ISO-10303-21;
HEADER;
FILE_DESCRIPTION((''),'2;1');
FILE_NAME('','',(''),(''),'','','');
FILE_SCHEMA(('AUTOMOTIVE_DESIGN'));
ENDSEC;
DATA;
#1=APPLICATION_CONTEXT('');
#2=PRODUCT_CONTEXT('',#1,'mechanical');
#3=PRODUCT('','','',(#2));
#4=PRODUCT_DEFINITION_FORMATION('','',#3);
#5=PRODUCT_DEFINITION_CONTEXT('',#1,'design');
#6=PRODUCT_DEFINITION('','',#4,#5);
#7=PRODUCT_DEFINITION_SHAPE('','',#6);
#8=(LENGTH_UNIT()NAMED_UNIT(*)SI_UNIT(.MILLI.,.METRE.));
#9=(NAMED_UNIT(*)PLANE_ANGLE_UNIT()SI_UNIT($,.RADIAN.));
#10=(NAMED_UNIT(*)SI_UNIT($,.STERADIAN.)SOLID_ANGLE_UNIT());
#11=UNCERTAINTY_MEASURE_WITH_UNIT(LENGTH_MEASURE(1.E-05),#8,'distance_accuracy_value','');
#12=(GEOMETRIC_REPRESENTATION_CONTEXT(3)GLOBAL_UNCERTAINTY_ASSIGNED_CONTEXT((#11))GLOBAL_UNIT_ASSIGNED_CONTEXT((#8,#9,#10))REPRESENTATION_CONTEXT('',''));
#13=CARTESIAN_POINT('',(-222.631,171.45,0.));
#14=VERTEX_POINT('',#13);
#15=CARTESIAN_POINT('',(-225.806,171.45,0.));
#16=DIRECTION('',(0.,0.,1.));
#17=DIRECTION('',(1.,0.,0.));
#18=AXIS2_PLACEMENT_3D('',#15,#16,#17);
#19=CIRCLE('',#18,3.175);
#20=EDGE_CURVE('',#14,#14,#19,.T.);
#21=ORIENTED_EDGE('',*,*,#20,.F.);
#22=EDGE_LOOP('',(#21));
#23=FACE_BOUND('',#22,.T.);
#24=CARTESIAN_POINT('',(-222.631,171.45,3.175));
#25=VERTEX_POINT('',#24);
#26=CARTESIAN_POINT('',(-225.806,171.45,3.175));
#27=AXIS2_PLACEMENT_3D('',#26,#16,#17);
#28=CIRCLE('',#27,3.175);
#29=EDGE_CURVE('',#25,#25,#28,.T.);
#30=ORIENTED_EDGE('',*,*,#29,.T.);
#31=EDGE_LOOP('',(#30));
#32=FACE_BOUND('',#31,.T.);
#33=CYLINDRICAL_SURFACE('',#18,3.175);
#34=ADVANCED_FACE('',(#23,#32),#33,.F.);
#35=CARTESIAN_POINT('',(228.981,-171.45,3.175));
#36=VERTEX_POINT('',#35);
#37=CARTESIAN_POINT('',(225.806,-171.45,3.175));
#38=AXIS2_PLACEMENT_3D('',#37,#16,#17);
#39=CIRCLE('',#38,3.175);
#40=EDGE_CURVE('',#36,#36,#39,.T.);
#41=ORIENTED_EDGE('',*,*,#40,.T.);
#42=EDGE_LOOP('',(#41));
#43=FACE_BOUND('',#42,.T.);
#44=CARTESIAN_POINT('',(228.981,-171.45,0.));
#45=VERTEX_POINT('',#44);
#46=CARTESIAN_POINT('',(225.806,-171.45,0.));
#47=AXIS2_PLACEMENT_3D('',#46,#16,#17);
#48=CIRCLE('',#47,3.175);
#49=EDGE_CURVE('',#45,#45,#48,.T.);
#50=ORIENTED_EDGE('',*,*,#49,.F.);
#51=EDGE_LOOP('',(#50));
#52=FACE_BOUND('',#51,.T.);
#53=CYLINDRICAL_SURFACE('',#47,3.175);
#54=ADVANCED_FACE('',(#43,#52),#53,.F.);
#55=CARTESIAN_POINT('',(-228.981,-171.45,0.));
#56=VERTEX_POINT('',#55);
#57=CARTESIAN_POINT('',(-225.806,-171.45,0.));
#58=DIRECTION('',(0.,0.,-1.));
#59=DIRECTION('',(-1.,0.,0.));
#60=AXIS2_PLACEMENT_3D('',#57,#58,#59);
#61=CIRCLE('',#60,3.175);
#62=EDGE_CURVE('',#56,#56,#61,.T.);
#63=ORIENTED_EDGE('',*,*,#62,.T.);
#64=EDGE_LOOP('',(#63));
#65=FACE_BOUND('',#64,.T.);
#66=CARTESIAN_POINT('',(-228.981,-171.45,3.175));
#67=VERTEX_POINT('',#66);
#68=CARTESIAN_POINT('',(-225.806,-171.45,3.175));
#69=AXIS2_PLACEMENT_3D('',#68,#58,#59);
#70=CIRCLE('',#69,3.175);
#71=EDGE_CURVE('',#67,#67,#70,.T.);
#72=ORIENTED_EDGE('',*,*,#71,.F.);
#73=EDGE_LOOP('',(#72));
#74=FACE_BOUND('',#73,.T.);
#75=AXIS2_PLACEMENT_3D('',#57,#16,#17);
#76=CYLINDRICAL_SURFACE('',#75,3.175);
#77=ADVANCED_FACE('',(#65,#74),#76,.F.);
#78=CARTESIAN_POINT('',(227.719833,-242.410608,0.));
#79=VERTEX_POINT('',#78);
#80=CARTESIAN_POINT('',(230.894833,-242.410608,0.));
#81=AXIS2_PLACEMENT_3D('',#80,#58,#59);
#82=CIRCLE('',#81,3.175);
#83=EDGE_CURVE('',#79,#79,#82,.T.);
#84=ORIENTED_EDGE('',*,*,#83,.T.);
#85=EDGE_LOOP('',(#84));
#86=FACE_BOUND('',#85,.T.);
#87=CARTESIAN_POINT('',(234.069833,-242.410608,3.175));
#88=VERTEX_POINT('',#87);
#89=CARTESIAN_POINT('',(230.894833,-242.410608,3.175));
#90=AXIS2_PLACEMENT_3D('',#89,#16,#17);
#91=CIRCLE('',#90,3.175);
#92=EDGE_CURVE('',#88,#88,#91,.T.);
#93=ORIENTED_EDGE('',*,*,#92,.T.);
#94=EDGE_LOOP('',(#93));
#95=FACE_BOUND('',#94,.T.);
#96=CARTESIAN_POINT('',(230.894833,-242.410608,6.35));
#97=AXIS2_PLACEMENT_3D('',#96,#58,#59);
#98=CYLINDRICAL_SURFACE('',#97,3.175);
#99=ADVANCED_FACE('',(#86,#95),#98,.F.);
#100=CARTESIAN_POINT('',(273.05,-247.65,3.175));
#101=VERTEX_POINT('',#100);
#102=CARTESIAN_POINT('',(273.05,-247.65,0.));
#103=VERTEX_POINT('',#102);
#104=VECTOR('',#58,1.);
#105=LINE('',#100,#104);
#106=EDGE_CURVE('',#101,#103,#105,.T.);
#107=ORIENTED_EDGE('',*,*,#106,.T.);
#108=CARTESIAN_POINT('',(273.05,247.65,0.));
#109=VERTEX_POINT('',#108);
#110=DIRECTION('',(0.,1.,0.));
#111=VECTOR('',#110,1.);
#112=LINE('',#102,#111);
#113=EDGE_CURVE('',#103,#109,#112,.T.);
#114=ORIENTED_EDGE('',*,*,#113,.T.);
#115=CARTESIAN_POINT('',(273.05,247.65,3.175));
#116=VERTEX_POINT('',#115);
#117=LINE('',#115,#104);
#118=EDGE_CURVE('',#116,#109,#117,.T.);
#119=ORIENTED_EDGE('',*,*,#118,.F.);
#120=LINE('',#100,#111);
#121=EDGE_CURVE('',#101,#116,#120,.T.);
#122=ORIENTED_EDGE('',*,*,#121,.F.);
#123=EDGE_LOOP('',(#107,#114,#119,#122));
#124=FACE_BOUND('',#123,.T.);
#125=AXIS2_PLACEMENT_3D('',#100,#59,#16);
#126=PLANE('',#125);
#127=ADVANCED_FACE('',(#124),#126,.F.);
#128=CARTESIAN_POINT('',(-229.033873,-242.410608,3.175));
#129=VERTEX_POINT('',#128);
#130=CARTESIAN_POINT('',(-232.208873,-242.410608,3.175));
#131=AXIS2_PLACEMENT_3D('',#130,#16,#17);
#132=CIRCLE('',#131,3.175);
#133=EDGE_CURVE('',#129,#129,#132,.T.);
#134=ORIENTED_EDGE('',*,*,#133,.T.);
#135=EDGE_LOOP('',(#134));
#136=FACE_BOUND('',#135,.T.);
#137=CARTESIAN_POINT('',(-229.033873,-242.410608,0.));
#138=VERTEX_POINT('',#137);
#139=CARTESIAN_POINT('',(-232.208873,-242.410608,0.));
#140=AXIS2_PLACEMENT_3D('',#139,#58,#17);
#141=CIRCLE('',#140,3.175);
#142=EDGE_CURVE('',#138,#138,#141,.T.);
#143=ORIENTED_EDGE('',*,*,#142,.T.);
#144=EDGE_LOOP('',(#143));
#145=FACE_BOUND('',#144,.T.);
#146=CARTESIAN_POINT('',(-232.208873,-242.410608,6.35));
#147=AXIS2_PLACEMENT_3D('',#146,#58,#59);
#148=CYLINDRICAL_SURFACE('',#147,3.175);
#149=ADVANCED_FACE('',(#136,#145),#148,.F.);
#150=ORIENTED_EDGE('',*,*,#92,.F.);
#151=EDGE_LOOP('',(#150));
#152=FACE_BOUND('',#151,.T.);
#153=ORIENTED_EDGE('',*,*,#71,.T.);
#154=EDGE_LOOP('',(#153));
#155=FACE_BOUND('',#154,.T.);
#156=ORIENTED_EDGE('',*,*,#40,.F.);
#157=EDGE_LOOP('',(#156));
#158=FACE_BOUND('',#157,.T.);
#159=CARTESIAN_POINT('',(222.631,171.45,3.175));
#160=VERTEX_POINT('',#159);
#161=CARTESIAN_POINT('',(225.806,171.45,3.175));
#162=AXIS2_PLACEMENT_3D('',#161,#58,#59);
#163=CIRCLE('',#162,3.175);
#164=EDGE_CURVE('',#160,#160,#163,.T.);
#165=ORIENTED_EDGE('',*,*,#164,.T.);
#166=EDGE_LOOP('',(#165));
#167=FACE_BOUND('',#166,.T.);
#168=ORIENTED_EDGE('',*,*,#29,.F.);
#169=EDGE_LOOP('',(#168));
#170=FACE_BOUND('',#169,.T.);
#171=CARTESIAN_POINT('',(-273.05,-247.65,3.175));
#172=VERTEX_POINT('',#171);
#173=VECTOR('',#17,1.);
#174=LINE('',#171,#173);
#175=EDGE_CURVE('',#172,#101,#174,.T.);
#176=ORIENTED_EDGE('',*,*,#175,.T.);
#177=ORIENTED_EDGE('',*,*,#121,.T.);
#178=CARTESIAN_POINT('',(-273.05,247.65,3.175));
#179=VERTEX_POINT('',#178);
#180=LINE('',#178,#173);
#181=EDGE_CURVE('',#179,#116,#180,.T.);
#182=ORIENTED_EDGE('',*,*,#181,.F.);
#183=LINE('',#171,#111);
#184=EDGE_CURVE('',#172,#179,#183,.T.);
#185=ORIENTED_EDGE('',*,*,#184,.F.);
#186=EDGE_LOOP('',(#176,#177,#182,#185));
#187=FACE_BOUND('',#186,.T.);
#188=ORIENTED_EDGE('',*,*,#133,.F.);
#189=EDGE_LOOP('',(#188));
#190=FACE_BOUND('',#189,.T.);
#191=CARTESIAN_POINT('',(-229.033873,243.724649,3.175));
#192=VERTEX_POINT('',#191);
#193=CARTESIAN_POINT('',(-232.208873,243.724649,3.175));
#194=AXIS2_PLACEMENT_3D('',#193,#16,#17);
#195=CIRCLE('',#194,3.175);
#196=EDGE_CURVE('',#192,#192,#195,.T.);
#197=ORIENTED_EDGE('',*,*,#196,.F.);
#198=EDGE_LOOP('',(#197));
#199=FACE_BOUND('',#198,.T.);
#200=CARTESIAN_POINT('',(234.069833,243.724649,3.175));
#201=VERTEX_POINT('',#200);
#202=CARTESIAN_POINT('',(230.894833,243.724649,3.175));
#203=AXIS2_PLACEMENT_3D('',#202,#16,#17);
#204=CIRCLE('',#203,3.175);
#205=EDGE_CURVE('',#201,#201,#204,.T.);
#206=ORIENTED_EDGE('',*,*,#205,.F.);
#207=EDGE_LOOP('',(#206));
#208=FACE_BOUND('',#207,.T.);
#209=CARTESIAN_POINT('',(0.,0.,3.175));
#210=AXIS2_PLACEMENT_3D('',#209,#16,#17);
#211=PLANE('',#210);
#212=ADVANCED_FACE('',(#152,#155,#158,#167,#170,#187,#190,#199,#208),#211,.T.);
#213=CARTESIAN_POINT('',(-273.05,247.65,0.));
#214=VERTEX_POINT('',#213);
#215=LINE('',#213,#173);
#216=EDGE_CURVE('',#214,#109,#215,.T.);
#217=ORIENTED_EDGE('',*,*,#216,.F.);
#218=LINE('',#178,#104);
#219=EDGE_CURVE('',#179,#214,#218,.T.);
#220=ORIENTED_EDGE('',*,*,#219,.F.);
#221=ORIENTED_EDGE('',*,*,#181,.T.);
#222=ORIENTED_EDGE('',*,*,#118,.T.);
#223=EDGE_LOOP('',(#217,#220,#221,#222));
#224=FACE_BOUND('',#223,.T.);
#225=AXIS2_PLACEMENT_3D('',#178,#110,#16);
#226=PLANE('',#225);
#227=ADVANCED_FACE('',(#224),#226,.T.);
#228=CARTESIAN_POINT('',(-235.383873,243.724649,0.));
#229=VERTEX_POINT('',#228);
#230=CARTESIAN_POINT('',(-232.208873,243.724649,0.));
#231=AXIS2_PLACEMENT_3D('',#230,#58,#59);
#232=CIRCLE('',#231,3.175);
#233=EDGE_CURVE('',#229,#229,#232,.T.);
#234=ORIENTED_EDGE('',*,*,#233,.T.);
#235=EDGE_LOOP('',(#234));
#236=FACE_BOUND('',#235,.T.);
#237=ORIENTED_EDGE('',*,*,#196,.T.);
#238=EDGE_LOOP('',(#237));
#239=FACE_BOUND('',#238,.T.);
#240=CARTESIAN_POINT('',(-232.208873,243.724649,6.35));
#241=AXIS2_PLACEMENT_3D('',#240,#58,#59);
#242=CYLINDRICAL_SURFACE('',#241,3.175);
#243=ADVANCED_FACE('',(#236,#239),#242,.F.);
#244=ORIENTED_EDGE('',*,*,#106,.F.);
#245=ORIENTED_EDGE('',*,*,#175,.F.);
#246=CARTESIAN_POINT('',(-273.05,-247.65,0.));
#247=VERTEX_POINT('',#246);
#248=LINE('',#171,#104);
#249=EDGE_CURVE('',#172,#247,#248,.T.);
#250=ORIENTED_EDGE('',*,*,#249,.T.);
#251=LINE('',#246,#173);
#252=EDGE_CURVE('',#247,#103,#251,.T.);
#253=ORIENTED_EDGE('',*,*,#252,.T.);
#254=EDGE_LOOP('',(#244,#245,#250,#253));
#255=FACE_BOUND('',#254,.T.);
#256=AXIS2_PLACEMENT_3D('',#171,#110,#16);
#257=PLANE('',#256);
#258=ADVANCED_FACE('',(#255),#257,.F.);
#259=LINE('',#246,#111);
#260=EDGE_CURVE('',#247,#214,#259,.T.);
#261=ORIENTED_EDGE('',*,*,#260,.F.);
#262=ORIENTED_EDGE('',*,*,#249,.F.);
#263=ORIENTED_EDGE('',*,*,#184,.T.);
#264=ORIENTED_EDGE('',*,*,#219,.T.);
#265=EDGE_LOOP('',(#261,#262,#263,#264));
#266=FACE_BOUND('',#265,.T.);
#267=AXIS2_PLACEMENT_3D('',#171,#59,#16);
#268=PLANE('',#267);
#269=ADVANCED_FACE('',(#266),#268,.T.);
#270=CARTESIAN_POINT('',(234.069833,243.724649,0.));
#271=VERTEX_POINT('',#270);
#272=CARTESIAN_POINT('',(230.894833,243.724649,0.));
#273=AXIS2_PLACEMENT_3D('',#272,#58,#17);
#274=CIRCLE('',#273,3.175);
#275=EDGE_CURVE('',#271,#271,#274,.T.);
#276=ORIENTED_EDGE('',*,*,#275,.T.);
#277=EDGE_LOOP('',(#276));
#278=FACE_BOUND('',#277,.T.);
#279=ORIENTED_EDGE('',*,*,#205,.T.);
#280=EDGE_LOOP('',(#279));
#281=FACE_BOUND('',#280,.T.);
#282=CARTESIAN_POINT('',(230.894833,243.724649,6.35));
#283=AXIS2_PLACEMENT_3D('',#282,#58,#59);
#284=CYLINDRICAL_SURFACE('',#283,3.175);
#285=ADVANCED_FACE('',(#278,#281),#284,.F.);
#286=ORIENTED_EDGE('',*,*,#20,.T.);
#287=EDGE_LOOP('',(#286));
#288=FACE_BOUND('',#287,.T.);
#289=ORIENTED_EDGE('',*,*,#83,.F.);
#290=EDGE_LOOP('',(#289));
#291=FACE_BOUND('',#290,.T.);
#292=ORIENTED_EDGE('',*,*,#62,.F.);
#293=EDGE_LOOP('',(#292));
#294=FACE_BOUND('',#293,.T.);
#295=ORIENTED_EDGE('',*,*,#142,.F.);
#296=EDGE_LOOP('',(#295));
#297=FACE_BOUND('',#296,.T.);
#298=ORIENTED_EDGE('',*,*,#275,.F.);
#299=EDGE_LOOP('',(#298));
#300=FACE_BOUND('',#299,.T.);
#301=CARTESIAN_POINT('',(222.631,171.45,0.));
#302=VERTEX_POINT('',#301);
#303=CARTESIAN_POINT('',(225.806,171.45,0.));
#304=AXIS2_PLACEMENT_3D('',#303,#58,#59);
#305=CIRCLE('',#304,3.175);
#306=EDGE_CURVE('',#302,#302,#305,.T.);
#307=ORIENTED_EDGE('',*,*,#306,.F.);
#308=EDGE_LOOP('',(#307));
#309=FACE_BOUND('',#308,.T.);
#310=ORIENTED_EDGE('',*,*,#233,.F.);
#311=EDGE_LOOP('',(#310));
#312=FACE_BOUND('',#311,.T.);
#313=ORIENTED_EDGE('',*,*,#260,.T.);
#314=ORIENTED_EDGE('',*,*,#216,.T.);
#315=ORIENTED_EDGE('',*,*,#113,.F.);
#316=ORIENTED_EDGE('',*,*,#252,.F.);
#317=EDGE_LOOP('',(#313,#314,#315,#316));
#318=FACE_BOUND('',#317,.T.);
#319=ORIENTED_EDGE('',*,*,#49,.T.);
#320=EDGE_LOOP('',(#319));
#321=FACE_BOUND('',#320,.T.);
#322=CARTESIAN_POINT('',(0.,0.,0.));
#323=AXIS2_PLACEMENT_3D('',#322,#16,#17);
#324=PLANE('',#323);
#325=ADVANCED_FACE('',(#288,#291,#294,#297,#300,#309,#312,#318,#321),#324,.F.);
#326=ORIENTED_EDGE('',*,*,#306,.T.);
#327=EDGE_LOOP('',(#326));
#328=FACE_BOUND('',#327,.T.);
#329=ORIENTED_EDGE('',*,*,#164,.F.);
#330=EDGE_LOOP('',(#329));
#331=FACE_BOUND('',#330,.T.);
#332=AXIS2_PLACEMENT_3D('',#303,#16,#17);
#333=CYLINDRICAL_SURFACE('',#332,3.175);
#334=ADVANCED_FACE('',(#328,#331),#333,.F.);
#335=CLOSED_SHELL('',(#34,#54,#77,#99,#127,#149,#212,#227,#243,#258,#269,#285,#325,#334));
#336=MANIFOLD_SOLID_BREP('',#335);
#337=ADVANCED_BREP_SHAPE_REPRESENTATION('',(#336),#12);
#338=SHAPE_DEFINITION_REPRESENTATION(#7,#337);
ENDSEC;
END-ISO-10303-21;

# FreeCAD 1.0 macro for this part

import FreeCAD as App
import Part
import Sketcher

V = App.Vector
Q = App.Units.Quantity

doc = App.newDocument("Part")
body = doc.addObject("PartDesign::Body", "Body")

# Sketch on XY plane
sketch1 = body.newObject("Sketcher::SketchObject", "Sketch")
sketch1.AttachmentSupport = (doc.getObject("XY_Plane"), [""])
sketch1.MapMode = "FlatFace"
sketch1.addGeometry([
    Part.LineSegment(V(-273.05, 247.65, 0), V(-273.05, -247.65, 0)),
    Part.LineSegment(V(-273.05, -247.65, 0), V(273.05, -247.65, 0)),
    Part.LineSegment(V(273.05, -247.65, 0), V(273.05, 247.65, 0)),
    Part.LineSegment(V(273.05, 247.65, 0), V(-273.05, 247.65, 0)),
], False)
sketch1.addConstraint([
    Sketcher.Constraint("Coincident", 0, 2, 1, 1),
    Sketcher.Constraint("Coincident", 1, 2, 2, 1),
    Sketcher.Constraint("Coincident", 2, 2, 3, 1),
    Sketcher.Constraint("Coincident", 3, 2, 0, 1),
    Sketcher.Constraint("Vertical", 0),
    Sketcher.Constraint("Horizontal", 1),
    Sketcher.Constraint("Vertical", 2),
    Sketcher.Constraint("Horizontal", 3),
    Sketcher.Constraint("Symmetric", 0, 2, 2, 2, -1, 1),
    Sketcher.Constraint("DistanceX", 1, 1, 1, 2, Q("21.5 in")),
    Sketcher.Constraint("DistanceY", 0, 2, 0, 1, Q("19.5 in")),
])
pad1 = body.newObject("PartDesign::Pad", "Pad")
pad1.Profile = sketch1
pad1.Length = Q("0.125 in")

# Sketch on XY plane
sketch2 = body.newObject("Sketcher::SketchObject", "Sketch001")
sketch2.AttachmentSupport = (doc.getObject("XY_Plane"), [""])
sketch2.MapMode = "FlatFace"
sketch2.AttachmentOffset = App.Placement(V(0, 0, 0.125 * 25.4), App.Rotation())
sketch2.addGeometry([
    Part.Circle(V(-225.806, 171.45, 0), V(0, 0, 1), 3.175),
    Part.Circle(V(225.806, 171.45, 0), V(0, 0, 1), 3.175),
    Part.Circle(V(225.806, -171.45, 0), V(0, 0, 1), 3.175),
    Part.Circle(V(-225.806, -171.45, 0), V(0, 0, 1), 3.175),
], False)
sketch2.addConstraint([
    Sketcher.Constraint("Equal", 0, 1),
    Sketcher.Constraint("Equal", 1, 2),
    Sketcher.Constraint("Equal", 2, 3),
    Sketcher.Constraint("Symmetric", 0, 3, 2, 3, -1, 1),
    Sketcher.Constraint("Symmetric", 1, 3, 3, 3, -1, 1),
    Sketcher.Constraint("Symmetric", 0, 3, 1, 3, -2),
    Sketcher.Constraint("Diameter", 0, Q("0.25 in")),
    Sketcher.Constraint("DistanceY", 2, 3, 1, 3, Q("13.5 in")),
    Sketcher.Constraint("DistanceX", 0, 3, -1, 1, Q("8.89 in")),
])
pocket1 = body.newObject("PartDesign::Pocket", "Pocket")
pocket1.Profile = sketch2
pocket1.Length = Q("0.125 in")

# Sketch on XY plane
sketch3 = body.newObject("Sketcher::SketchObject", "Sketch002")
sketch3.AttachmentSupport = (doc.getObject("XY_Plane"), [""])
sketch3.MapMode = "FlatFace"
sketch3.addGeometry([
    Part.Circle(V(230.894833, -242.410608, 0), V(0, 0, 1), 3.175),
    Part.Circle(V(230.894833, 243.724649, 0), V(0, 0, 1), 3.175),
    Part.Circle(V(-232.208873, -242.410608, 0), V(0, 0, 1), 3.175),
    Part.Circle(V(-232.208873, 243.724649, 0), V(0, 0, 1), 3.175),
], False)
sketch3.addConstraint([
    Sketcher.Constraint("Equal", 0, 1),
    Sketcher.Constraint("Equal", 1, 2),
    Sketcher.Constraint("Equal", 2, 3),
    Sketcher.Constraint("Horizontal", 0, 3, 2, 3),
    Sketcher.Constraint("Horizontal", 1, 3, 3, 3),
    Sketcher.Constraint("Vertical", 0, 3, 1, 3),
    Sketcher.Constraint("Vertical", 2, 3, 3, 3),
    Sketcher.Constraint("Diameter", 0, Q("0.25 in")),
    Sketcher.Constraint("DistanceY", 0, 3, -1, 1, Q("242.410608 mm")),
    Sketcher.Constraint("DistanceY", -1, 1, 1, 3, Q("243.724649 mm")),
    Sketcher.Constraint("DistanceX", -1, 1, 0, 3, Q("230.894833 mm")),
    Sketcher.Constraint("DistanceX", 2, 3, -1, 1, Q("232.208873 mm")),
])
pocket2 = body.newObject("PartDesign::Pocket", "Pocket001")
pocket2.Profile = sketch3
pocket2.Length = Q("0.25 in")
pocket2.Reversed = True

doc.recompute()
